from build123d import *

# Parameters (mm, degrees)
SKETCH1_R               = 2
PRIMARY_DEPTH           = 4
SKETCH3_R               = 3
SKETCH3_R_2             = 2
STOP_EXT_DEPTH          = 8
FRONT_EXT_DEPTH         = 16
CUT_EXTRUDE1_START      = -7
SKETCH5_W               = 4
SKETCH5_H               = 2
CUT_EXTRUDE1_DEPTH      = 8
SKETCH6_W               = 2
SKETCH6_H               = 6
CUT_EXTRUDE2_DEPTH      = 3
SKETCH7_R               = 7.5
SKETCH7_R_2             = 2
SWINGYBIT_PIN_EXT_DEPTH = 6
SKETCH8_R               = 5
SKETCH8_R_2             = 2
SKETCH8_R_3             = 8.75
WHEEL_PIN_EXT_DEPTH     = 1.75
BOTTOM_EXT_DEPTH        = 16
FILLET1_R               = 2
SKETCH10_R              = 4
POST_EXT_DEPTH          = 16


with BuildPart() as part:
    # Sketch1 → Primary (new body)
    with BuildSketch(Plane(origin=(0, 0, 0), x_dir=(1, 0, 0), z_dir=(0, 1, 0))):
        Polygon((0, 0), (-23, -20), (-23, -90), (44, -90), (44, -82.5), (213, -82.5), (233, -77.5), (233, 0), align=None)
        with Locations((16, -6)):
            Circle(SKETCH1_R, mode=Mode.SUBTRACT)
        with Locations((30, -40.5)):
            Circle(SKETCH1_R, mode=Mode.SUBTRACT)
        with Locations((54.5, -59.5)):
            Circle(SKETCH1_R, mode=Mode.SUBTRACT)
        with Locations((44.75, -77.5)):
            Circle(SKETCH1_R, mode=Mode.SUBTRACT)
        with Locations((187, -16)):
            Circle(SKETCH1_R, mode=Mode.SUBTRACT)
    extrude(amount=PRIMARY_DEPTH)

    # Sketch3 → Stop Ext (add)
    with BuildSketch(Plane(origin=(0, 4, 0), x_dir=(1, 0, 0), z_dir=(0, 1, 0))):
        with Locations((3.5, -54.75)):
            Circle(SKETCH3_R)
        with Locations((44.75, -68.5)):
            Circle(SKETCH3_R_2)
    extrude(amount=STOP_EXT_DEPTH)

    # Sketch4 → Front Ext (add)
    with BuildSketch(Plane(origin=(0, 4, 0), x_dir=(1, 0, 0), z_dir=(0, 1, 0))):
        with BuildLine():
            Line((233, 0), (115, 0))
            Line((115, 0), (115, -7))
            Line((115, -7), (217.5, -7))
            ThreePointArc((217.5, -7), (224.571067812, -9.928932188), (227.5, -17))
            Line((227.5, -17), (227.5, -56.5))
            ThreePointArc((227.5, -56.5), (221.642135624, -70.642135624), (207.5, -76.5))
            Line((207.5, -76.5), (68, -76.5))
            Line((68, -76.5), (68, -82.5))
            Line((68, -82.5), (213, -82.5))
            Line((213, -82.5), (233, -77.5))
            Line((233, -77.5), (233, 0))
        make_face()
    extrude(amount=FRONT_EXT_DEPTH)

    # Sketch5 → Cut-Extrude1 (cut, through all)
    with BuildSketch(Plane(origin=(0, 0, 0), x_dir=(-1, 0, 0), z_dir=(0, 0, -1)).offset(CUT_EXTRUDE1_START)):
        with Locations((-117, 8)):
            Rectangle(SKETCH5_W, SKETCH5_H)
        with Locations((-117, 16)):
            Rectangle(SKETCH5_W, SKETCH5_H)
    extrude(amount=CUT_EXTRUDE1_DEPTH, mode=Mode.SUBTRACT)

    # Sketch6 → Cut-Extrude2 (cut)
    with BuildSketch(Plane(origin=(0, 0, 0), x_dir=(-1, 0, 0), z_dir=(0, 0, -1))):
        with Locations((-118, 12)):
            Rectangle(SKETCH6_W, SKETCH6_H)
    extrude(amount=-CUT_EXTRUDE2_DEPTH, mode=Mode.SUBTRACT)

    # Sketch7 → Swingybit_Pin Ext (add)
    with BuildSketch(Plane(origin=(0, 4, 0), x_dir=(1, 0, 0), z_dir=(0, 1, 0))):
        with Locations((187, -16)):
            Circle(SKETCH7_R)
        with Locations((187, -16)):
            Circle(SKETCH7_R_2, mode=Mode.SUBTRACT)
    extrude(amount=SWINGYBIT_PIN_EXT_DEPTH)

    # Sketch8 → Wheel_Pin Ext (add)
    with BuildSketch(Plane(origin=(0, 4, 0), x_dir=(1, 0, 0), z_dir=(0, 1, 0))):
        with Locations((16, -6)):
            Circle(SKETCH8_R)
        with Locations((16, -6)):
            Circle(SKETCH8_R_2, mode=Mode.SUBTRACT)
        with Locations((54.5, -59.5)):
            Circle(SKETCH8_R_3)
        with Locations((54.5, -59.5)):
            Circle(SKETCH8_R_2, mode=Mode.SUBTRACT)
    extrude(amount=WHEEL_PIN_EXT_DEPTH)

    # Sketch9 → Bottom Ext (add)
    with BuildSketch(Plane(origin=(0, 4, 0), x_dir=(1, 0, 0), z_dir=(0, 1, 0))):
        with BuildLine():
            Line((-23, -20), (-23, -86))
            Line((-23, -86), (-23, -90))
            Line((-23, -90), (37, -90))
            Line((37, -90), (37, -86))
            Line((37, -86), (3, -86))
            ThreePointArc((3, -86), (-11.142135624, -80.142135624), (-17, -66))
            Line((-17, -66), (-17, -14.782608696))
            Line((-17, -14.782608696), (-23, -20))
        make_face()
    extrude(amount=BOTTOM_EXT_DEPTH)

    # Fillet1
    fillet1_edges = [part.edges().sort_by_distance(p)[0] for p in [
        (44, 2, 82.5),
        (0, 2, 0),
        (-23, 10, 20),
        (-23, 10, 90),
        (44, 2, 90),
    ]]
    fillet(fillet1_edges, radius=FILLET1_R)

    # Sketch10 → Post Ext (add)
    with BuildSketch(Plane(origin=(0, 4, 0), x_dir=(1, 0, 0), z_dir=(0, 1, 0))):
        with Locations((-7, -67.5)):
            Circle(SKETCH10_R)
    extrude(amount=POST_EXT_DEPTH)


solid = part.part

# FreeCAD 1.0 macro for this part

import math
import FreeCAD as App
import Part
import Sketcher

V = App.Vector


def edges_at(feature, points):
    """Names of the edges that pass closest to the given points."""
    edges = feature.Shape.Edges
    near = lambda p: min(range(len(edges)), key=lambda i: edges[i].distToShape(Part.Vertex(*p))[0])
    return sorted({f"Edge{near(p) + 1}" for p in points})

doc = App.newDocument("Part")
body = doc.addObject("PartDesign::Body", "Body")

sketch1 = body.newObject("Sketcher::SketchObject", "Sketch")
sketch1.AttachmentSupport = (doc.getObject("XZ_Plane"), [""])
sketch1.MapMode = "FlatFace"
sketch1.addGeometry([
    Part.LineSegment(V(0, 0, 0), V(-23, 20, 0)),
    Part.LineSegment(V(-23, 20, 0), V(-23, 90, 0)),
    Part.LineSegment(V(-23, 90, 0), V(44, 90, 0)),
    Part.LineSegment(V(44, 90, 0), V(44, 82.5, 0)),
    Part.LineSegment(V(44, 82.5, 0), V(213, 82.5, 0)),
    Part.LineSegment(V(213, 82.5, 0), V(233, 77.5, 0)),
    Part.LineSegment(V(233, 77.5, 0), V(233, 0, 0)),
    Part.LineSegment(V(233, 0, 0), V(0, 0, 0)),
    Part.Circle(V(44.8, 77.5, 0), V(0, 0, 1), 2),
    Part.Circle(V(54.5, 59.5, 0), V(0, 0, 1), 2),
    Part.Circle(V(30, 40.5, 0), V(0, 0, 1), 2),
    Part.Circle(V(16, 6, 0), V(0, 0, 1), 2),
    Part.Circle(V(187, 16, 0), V(0, 0, 1), 2),
], False)
sketch1.addConstraint([
    Sketcher.Constraint("Coincident", 0, 2, 1, 1),
    Sketcher.Constraint("Coincident", 1, 2, 2, 1),
    Sketcher.Constraint("Coincident", 2, 2, 3, 1),
    Sketcher.Constraint("Coincident", 3, 2, 4, 1),
    Sketcher.Constraint("Coincident", 4, 2, 5, 1),
    Sketcher.Constraint("Coincident", 5, 2, 6, 1),
    Sketcher.Constraint("Coincident", 6, 2, 7, 1),
    Sketcher.Constraint("Coincident", 7, 2, 0, 1),
    Sketcher.Constraint("Vertical", 1),
    Sketcher.Constraint("Horizontal", 2),
    Sketcher.Constraint("Vertical", 3),
    Sketcher.Constraint("Horizontal", 4),
    Sketcher.Constraint("Vertical", 6),
    Sketcher.Constraint("Horizontal", 7),
    Sketcher.Constraint("Coincident", 7, 2, -1, 1),
    Sketcher.Constraint("Equal", 8, 9),
    Sketcher.Constraint("Equal", 9, 10),
    Sketcher.Constraint("Equal", 10, 11),
    Sketcher.Constraint("Equal", 11, 12),
    Sketcher.Constraint("Horizontal", 8, 3, 5, 2),
    Sketcher.Constraint("Diameter", 8, 4.0),
    Sketcher.Constraint("DistanceX", 2, 1, 2, 2, 67.0),
    Sketcher.Constraint("DistanceX", 4, 1, 4, 2, 169.0),
    Sketcher.Constraint("DistanceX", 7, 2, 7, 1, 233.0),
    Sketcher.Constraint("DistanceY", 1, 1, 1, 2, 70.0),
    Sketcher.Constraint("DistanceY", 3, 2, 3, 1, 7.5),
    Sketcher.Constraint("DistanceY", 6, 2, 6, 1, 77.5),
    Sketcher.Constraint("DistanceX", -1, 1, 10, 3, 30.0),
    Sketcher.Constraint("DistanceX", -1, 1, 11, 3, 16.0),
    Sketcher.Constraint("DistanceY", -1, 1, 11, 3, 6.0),
    Sketcher.Constraint("DistanceX", -1, 1, 12, 3, 187.0),
    Sketcher.Constraint("DistanceY", -1, 1, 12, 3, 16.0),
    Sketcher.Constraint("DistanceX", 0, 2, -1, 1, 23.0),
    Sketcher.Constraint("DistanceY", -1, 1, 0, 2, 20.0),
    Sketcher.Constraint("DistanceY", 9, 3, 8, 3, 18.0),
    Sketcher.Constraint("DistanceY", 10, 3, 9, 3, 19.0),
    Sketcher.Constraint("DistanceX", -1, 1, 9, 3, 54.5),
    Sketcher.Constraint("DistanceX", -1, 1, 8, 3, 44.75),
])
pad1 = body.newObject("PartDesign::Pad", "Pad")
pad1.Profile = sketch1
pad1.Length = 4
pad1.Reversed = True

sketch2 = body.newObject("Sketcher::SketchObject", "Sketch001")
sketch2.AttachmentSupport = (doc.getObject("XZ_Plane"), [""])
sketch2.MapMode = "FlatFace"
sketch2.AttachmentOffset = App.Placement(V(0, 0, -4), App.Rotation())
sketch2.addGeometry([
    Part.Circle(V(3.5, 54.8, 0), V(0, 0, 1), 3),
    Part.Circle(V(44.8, 68.5, 0), V(0, 0, 1), 2),
], False)
sketch2.addConstraint([
    Sketcher.Constraint("Diameter", 0, 6.0),
    Sketcher.Constraint("Diameter", 1, 4.0),
    Sketcher.Constraint("DistanceX", -1, 1, 0, 3, 3.5),
    Sketcher.Constraint("DistanceY", -1, 1, 1, 3, 68.5),
    Sketcher.Constraint("DistanceY", -1, 1, 0, 3, 54.75),
    Sketcher.Constraint("DistanceX", -1, 1, 1, 3, 44.75),
])
pad2 = body.newObject("PartDesign::Pad", "Pad001")
pad2.Profile = sketch2
pad2.Length = 8
pad2.Reversed = True

sketch3 = body.newObject("Sketcher::SketchObject", "Sketch002")
sketch3.AttachmentSupport = (doc.getObject("XZ_Plane"), [""])
sketch3.MapMode = "FlatFace"
sketch3.AttachmentOffset = App.Placement(V(0, 0, -4), App.Rotation())
sketch3.addGeometry([
    Part.LineSegment(V(233, 0, 0), V(115, 0, 0)),
    Part.LineSegment(V(115, 0, 0), V(115, 7, 0)),
    Part.LineSegment(V(115, 7, 0), V(218, 7, 0)),
    Part.ArcOfCircle(Part.Circle(V(218, 17, 0), V(0, 0, 1), 10), math.radians(-90), math.radians(0)),
    Part.LineSegment(V(228, 17, 0), V(228, 56, 0)),
    Part.ArcOfCircle(Part.Circle(V(208, 57, 0), V(0, 0, 1), 20), math.radians(0), math.radians(90)),
    Part.LineSegment(V(208, 76, 0), V(68, 76, 0)),
    Part.LineSegment(V(68, 76, 0), V(68, 82, 0)),
    Part.LineSegment(V(68, 82, 0), V(213, 82, 0)),
    Part.LineSegment(V(213, 82, 0), V(233, 78, 0)),
    Part.LineSegment(V(233, 78, 0), V(233, 0, 0)),
], False)
sketch3.addConstraint([
    Sketcher.Constraint("Coincident", 0, 2, 1, 1),
    Sketcher.Constraint("Coincident", 1, 2, 2, 1),
    Sketcher.Constraint("Tangent", 2, 2, 3, 1),
    Sketcher.Constraint("Tangent", 3, 2, 4, 1),
    Sketcher.Constraint("Tangent", 4, 2, 5, 1),
    Sketcher.Constraint("Tangent", 5, 2, 6, 1),
    Sketcher.Constraint("Coincident", 6, 2, 7, 1),
    Sketcher.Constraint("Coincident", 7, 2, 8, 1),
    Sketcher.Constraint("Coincident", 8, 2, 9, 1),
    Sketcher.Constraint("Coincident", 9, 2, 10, 1),
    Sketcher.Constraint("Coincident", 10, 2, 0, 1),
    Sketcher.Constraint("Horizontal", 0),
    Sketcher.Constraint("Vertical", 1),
    Sketcher.Constraint("Horizontal", 2),
    Sketcher.Constraint("Vertical", 4),
    Sketcher.Constraint("Horizontal", 6),
    Sketcher.Constraint("Vertical", 7),
    Sketcher.Constraint("Horizontal", 8),
    Sketcher.Constraint("Vertical", 10),
    Sketcher.Constraint("PointOnObject", 0, 2, -1),
    Sketcher.Constraint("Radius", 3, 10.0),
    Sketcher.Constraint("Radius", 5, 20.0),
    Sketcher.Constraint("DistanceX", 0, 2, 0, 1, 118.0),
    Sketcher.Constraint("DistanceX", 8, 1, 8, 2, 145.0),
    Sketcher.Constraint("DistanceY", 1, 1, 1, 2, 7.0),
    Sketcher.Constraint("DistanceY", 7, 1, 7, 2, 6.0),
    Sketcher.Constraint("DistanceX", 2, 1, 2, 2, 102.5),
    Sketcher.Constraint("DistanceX", 6, 2, 6, 1, 139.5),
    Sketcher.Constraint("DistanceY", 4, 1, 4, 2, 39.5),
    Sketcher.Constraint("DistanceY", 10, 2, 10, 1, 77.5),
    Sketcher.Constraint("DistanceX", -1, 1, 0, 2, 115.0),
])
pad3 = body.newObject("PartDesign::Pad", "Pad002")
pad3.Profile = sketch3
pad3.Length = 16
pad3.Reversed = True

sketch4 = body.newObject("Sketcher::SketchObject", "Sketch003")
sketch4.AttachmentSupport = (doc.getObject("XY_Plane"), [""])
sketch4.MapMode = "FlatFace"
sketch4.AttachmentOffset = App.Placement(V(0, 0, 7), App.Rotation())
sketch4.addGeometry([
    Part.LineSegment(V(119, 9, 0), V(119, 7, 0)),
    Part.LineSegment(V(119, 7, 0), V(115, 7, 0)),
    Part.LineSegment(V(115, 7, 0), V(115, 9, 0)),
    Part.LineSegment(V(115, 9, 0), V(119, 9, 0)),
    Part.LineSegment(V(119, 17, 0), V(119, 15, 0)),
    Part.LineSegment(V(119, 15, 0), V(115, 15, 0)),
    Part.LineSegment(V(115, 15, 0), V(115, 17, 0)),
    Part.LineSegment(V(115, 17, 0), V(119, 17, 0)),
], False)
sketch4.addConstraint([
    Sketcher.Constraint("Coincident", 0, 2, 1, 1),
    Sketcher.Constraint("Coincident", 1, 2, 2, 1),
    Sketcher.Constraint("Coincident", 2, 2, 3, 1),
    Sketcher.Constraint("Coincident", 3, 2, 0, 1),
    Sketcher.Constraint("Coincident", 4, 2, 5, 1),
    Sketcher.Constraint("Coincident", 5, 2, 6, 1),
    Sketcher.Constraint("Coincident", 6, 2, 7, 1),
    Sketcher.Constraint("Coincident", 7, 2, 4, 1),
    Sketcher.Constraint("Vertical", 0),
    Sketcher.Constraint("Horizontal", 1),
    Sketcher.Constraint("Vertical", 2),
    Sketcher.Constraint("Horizontal", 3),
    Sketcher.Constraint("Vertical", 4),
    Sketcher.Constraint("Horizontal", 5),
    Sketcher.Constraint("Vertical", 6),
    Sketcher.Constraint("Horizontal", 7),
    Sketcher.Constraint("Vertical", 3, 2, 4, 2),
    Sketcher.Constraint("Vertical", 2, 2, 5, 2),
    Sketcher.Constraint("Equal", 2, 4),
    Sketcher.Constraint("DistanceX", 1, 2, 1, 1, 4.0),
    Sketcher.Constraint("DistanceY", 0, 2, 0, 1, 2.0),
    Sketcher.Constraint("DistanceX", -1, 1, 0, 2, 119.0),
    Sketcher.Constraint("DistanceY", -1, 1, 0, 2, 7.0),
    Sketcher.Constraint("DistanceY", -1, 1, 4, 2, 15.0),
])
pocket1 = body.newObject("PartDesign::Pocket", "Pocket")
pocket1.Profile = sketch4
pocket1.Type = "ThroughAll"

sketch5 = body.newObject("Sketcher::SketchObject", "Sketch004")
sketch5.AttachmentSupport = (doc.getObject("XY_Plane"), [""])
sketch5.MapMode = "FlatFace"
sketch5.addGeometry([
    Part.LineSegment(V(119, 15, 0), V(119, 9, 0)),
    Part.LineSegment(V(119, 9, 0), V(117, 9, 0)),
    Part.LineSegment(V(117, 9, 0), V(117, 15, 0)),
    Part.LineSegment(V(117, 15, 0), V(119, 15, 0)),
], False)
sketch5.addConstraint([
    Sketcher.Constraint("Coincident", 0, 2, 1, 1),
    Sketcher.Constraint("Coincident", 1, 2, 2, 1),
    Sketcher.Constraint("Coincident", 2, 2, 3, 1),
    Sketcher.Constraint("Coincident", 3, 2, 0, 1),
    Sketcher.Constraint("Vertical", 0),
    Sketcher.Constraint("Horizontal", 1),
    Sketcher.Constraint("Vertical", 2),
    Sketcher.Constraint("Horizontal", 3),
    Sketcher.Constraint("DistanceX", 1, 2, 1, 1, 2.0),
    Sketcher.Constraint("DistanceY", 0, 2, 0, 1, 6.0),
    Sketcher.Constraint("DistanceX", -1, 1, 0, 2, 119.0),
    Sketcher.Constraint("DistanceY", -1, 1, 0, 2, 9.0),
])
pocket2 = body.newObject("PartDesign::Pocket", "Pocket001")
pocket2.Profile = sketch5
pocket2.Length = 3
pocket2.Reversed = True

sketch6 = body.newObject("Sketcher::SketchObject", "Sketch005")
sketch6.AttachmentSupport = (doc.getObject("XZ_Plane"), [""])
sketch6.MapMode = "FlatFace"
sketch6.AttachmentOffset = App.Placement(V(0, 0, -4), App.Rotation())
sketch6.addGeometry([
    Part.Circle(V(187, 16, 0), V(0, 0, 1), 7.5),
    Part.Circle(V(187, 16, 0), V(0, 0, 1), 2),
], False)
sketch6.addConstraint([
    Sketcher.Constraint("Coincident", 1, 3, 0, 3),
    Sketcher.Constraint("Diameter", 0, 15.0),
    Sketcher.Constraint("Diameter", 1, 4.0),
    Sketcher.Constraint("DistanceX", -1, 1, 0, 3, 187.0),
    Sketcher.Constraint("DistanceY", -1, 1, 0, 3, 16.0),
])
pad4 = body.newObject("PartDesign::Pad", "Pad003")
pad4.Profile = sketch6
pad4.Length = 6
pad4.Reversed = True

sketch7 = body.newObject("Sketcher::SketchObject", "Sketch006")
sketch7.AttachmentSupport = (doc.getObject("XZ_Plane"), [""])
sketch7.MapMode = "FlatFace"
sketch7.AttachmentOffset = App.Placement(V(0, 0, -4), App.Rotation())
sketch7.addGeometry([
    Part.Circle(V(16, 6, 0), V(0, 0, 1), 5),
    Part.Circle(V(16, 6, 0), V(0, 0, 1), 2),
    Part.Circle(V(54.5, 59.5, 0), V(0, 0, 1), 8.8),
    Part.Circle(V(54.5, 59.5, 0), V(0, 0, 1), 2),
], False)
sketch7.addConstraint([
    Sketcher.Constraint("Coincident", 1, 3, 0, 3),
    Sketcher.Constraint("Coincident", 3, 3, 2, 3),
    Sketcher.Constraint("Equal", 1, 3),
    Sketcher.Constraint("Diameter", 0, 10.0),
    Sketcher.Constraint("Diameter", 1, 4.0),
    Sketcher.Constraint("Diameter", 2, 17.5),
    Sketcher.Constraint("DistanceX", -1, 1, 0, 3, 16.0),
    Sketcher.Constraint("DistanceY", -1, 1, 0, 3, 6.0),
    Sketcher.Constraint("DistanceX", -1, 1, 2, 3, 54.5),
    Sketcher.Constraint("DistanceY", -1, 1, 2, 3, 59.5),
])
pad5 = body.newObject("PartDesign::Pad", "Pad004")
pad5.Profile = sketch7
pad5.Length = 1.75
pad5.Reversed = True

sketch8 = body.newObject("Sketcher::SketchObject", "Sketch007")
sketch8.AttachmentSupport = (doc.getObject("XZ_Plane"), [""])
sketch8.MapMode = "FlatFace"
sketch8.AttachmentOffset = App.Placement(V(0, 0, -4), App.Rotation())
sketch8.addGeometry([
    Part.LineSegment(V(-23, 20, 0), V(-23, 90, 0)),
    Part.LineSegment(V(-23, 90, 0), V(37, 90, 0)),
    Part.LineSegment(V(37, 90, 0), V(37, 86, 0)),
    Part.LineSegment(V(37, 86, 0), V(3, 86, 0)),
    Part.ArcOfCircle(Part.Circle(V(3, 66, 0), V(0, 0, 1), 20), math.radians(90), math.radians(180)),
    Part.LineSegment(V(-17, 66, 0), V(-17, 14.8, 0)),
    Part.LineSegment(V(-17, 14.8, 0), V(-23, 20, 0)),
], False)
sketch8.addConstraint([
    Sketcher.Constraint("Coincident", 0, 2, 1, 1),
    Sketcher.Constraint("Coincident", 1, 2, 2, 1),
    Sketcher.Constraint("Coincident", 2, 2, 3, 1),
    Sketcher.Constraint("Tangent", 3, 2, 4, 1),
    Sketcher.Constraint("Tangent", 4, 2, 5, 1),
    Sketcher.Constraint("Coincident", 5, 2, 6, 1),
    Sketcher.Constraint("Coincident", 6, 2, 0, 1),
    Sketcher.Constraint("Vertical", 0),
    Sketcher.Constraint("Horizontal", 1),
    Sketcher.Constraint("Vertical", 2),
    Sketcher.Constraint("Horizontal", 3),
    Sketcher.Constraint("Vertical", 5),
    Sketcher.Constraint("Radius", 4, 20.0),
    Sketcher.Constraint("DistanceX", 1, 1, 1, 2, 60.0),
    Sketcher.Constraint("DistanceX", 3, 2, 3, 1, 34.0),
    Sketcher.Constraint("DistanceY", 0, 1, 0, 2, 70.0),
    Sketcher.Constraint("DistanceY", 2, 2, 2, 1, 4.0),
    Sketcher.Constraint("DistanceX", -1, 1, 4, 3, 3.0),
    Sketcher.Constraint("DistanceY", -1, 1, 4, 3, 66.0),
    Sketcher.Constraint("DistanceY", 5, 2, 5, 1, 51.217391),
])
pad6 = body.newObject("PartDesign::Pad", "Pad005")
pad6.Profile = sketch8
pad6.Length = 16
pad6.Reversed = True
doc.recompute()

fillet = body.newObject("PartDesign::Fillet", "Fillet")
fillet.Base = (pad6, edges_at(pad6, [
    (44, 2, 82.5),
    (0, 2, 0),
    (-23, 12, 20),
    (-23, 10, 90),
    (44, 2, 90),
]))
fillet.Radius = 2

sketch9 = body.newObject("Sketcher::SketchObject", "Sketch008")
sketch9.AttachmentSupport = (doc.getObject("XZ_Plane"), [""])
sketch9.MapMode = "FlatFace"
sketch9.AttachmentOffset = App.Placement(V(0, 0, -4), App.Rotation())
sketch9.addGeometry(Part.Circle(V(-7, 67.5, 0), V(0, 0, 1), 4), False)
sketch9.addConstraint([
    Sketcher.Constraint("Diameter", 0, 8.0),
    Sketcher.Constraint("DistanceX", 0, 3, -1, 1, 7.0),
    Sketcher.Constraint("DistanceY", -1, 1, 0, 3, 67.5),
])
pad7 = body.newObject("PartDesign::Pad", "Pad006")
pad7.Profile = sketch9
pad7.Length = 16
pad7.Reversed = True

doc.recompute()
